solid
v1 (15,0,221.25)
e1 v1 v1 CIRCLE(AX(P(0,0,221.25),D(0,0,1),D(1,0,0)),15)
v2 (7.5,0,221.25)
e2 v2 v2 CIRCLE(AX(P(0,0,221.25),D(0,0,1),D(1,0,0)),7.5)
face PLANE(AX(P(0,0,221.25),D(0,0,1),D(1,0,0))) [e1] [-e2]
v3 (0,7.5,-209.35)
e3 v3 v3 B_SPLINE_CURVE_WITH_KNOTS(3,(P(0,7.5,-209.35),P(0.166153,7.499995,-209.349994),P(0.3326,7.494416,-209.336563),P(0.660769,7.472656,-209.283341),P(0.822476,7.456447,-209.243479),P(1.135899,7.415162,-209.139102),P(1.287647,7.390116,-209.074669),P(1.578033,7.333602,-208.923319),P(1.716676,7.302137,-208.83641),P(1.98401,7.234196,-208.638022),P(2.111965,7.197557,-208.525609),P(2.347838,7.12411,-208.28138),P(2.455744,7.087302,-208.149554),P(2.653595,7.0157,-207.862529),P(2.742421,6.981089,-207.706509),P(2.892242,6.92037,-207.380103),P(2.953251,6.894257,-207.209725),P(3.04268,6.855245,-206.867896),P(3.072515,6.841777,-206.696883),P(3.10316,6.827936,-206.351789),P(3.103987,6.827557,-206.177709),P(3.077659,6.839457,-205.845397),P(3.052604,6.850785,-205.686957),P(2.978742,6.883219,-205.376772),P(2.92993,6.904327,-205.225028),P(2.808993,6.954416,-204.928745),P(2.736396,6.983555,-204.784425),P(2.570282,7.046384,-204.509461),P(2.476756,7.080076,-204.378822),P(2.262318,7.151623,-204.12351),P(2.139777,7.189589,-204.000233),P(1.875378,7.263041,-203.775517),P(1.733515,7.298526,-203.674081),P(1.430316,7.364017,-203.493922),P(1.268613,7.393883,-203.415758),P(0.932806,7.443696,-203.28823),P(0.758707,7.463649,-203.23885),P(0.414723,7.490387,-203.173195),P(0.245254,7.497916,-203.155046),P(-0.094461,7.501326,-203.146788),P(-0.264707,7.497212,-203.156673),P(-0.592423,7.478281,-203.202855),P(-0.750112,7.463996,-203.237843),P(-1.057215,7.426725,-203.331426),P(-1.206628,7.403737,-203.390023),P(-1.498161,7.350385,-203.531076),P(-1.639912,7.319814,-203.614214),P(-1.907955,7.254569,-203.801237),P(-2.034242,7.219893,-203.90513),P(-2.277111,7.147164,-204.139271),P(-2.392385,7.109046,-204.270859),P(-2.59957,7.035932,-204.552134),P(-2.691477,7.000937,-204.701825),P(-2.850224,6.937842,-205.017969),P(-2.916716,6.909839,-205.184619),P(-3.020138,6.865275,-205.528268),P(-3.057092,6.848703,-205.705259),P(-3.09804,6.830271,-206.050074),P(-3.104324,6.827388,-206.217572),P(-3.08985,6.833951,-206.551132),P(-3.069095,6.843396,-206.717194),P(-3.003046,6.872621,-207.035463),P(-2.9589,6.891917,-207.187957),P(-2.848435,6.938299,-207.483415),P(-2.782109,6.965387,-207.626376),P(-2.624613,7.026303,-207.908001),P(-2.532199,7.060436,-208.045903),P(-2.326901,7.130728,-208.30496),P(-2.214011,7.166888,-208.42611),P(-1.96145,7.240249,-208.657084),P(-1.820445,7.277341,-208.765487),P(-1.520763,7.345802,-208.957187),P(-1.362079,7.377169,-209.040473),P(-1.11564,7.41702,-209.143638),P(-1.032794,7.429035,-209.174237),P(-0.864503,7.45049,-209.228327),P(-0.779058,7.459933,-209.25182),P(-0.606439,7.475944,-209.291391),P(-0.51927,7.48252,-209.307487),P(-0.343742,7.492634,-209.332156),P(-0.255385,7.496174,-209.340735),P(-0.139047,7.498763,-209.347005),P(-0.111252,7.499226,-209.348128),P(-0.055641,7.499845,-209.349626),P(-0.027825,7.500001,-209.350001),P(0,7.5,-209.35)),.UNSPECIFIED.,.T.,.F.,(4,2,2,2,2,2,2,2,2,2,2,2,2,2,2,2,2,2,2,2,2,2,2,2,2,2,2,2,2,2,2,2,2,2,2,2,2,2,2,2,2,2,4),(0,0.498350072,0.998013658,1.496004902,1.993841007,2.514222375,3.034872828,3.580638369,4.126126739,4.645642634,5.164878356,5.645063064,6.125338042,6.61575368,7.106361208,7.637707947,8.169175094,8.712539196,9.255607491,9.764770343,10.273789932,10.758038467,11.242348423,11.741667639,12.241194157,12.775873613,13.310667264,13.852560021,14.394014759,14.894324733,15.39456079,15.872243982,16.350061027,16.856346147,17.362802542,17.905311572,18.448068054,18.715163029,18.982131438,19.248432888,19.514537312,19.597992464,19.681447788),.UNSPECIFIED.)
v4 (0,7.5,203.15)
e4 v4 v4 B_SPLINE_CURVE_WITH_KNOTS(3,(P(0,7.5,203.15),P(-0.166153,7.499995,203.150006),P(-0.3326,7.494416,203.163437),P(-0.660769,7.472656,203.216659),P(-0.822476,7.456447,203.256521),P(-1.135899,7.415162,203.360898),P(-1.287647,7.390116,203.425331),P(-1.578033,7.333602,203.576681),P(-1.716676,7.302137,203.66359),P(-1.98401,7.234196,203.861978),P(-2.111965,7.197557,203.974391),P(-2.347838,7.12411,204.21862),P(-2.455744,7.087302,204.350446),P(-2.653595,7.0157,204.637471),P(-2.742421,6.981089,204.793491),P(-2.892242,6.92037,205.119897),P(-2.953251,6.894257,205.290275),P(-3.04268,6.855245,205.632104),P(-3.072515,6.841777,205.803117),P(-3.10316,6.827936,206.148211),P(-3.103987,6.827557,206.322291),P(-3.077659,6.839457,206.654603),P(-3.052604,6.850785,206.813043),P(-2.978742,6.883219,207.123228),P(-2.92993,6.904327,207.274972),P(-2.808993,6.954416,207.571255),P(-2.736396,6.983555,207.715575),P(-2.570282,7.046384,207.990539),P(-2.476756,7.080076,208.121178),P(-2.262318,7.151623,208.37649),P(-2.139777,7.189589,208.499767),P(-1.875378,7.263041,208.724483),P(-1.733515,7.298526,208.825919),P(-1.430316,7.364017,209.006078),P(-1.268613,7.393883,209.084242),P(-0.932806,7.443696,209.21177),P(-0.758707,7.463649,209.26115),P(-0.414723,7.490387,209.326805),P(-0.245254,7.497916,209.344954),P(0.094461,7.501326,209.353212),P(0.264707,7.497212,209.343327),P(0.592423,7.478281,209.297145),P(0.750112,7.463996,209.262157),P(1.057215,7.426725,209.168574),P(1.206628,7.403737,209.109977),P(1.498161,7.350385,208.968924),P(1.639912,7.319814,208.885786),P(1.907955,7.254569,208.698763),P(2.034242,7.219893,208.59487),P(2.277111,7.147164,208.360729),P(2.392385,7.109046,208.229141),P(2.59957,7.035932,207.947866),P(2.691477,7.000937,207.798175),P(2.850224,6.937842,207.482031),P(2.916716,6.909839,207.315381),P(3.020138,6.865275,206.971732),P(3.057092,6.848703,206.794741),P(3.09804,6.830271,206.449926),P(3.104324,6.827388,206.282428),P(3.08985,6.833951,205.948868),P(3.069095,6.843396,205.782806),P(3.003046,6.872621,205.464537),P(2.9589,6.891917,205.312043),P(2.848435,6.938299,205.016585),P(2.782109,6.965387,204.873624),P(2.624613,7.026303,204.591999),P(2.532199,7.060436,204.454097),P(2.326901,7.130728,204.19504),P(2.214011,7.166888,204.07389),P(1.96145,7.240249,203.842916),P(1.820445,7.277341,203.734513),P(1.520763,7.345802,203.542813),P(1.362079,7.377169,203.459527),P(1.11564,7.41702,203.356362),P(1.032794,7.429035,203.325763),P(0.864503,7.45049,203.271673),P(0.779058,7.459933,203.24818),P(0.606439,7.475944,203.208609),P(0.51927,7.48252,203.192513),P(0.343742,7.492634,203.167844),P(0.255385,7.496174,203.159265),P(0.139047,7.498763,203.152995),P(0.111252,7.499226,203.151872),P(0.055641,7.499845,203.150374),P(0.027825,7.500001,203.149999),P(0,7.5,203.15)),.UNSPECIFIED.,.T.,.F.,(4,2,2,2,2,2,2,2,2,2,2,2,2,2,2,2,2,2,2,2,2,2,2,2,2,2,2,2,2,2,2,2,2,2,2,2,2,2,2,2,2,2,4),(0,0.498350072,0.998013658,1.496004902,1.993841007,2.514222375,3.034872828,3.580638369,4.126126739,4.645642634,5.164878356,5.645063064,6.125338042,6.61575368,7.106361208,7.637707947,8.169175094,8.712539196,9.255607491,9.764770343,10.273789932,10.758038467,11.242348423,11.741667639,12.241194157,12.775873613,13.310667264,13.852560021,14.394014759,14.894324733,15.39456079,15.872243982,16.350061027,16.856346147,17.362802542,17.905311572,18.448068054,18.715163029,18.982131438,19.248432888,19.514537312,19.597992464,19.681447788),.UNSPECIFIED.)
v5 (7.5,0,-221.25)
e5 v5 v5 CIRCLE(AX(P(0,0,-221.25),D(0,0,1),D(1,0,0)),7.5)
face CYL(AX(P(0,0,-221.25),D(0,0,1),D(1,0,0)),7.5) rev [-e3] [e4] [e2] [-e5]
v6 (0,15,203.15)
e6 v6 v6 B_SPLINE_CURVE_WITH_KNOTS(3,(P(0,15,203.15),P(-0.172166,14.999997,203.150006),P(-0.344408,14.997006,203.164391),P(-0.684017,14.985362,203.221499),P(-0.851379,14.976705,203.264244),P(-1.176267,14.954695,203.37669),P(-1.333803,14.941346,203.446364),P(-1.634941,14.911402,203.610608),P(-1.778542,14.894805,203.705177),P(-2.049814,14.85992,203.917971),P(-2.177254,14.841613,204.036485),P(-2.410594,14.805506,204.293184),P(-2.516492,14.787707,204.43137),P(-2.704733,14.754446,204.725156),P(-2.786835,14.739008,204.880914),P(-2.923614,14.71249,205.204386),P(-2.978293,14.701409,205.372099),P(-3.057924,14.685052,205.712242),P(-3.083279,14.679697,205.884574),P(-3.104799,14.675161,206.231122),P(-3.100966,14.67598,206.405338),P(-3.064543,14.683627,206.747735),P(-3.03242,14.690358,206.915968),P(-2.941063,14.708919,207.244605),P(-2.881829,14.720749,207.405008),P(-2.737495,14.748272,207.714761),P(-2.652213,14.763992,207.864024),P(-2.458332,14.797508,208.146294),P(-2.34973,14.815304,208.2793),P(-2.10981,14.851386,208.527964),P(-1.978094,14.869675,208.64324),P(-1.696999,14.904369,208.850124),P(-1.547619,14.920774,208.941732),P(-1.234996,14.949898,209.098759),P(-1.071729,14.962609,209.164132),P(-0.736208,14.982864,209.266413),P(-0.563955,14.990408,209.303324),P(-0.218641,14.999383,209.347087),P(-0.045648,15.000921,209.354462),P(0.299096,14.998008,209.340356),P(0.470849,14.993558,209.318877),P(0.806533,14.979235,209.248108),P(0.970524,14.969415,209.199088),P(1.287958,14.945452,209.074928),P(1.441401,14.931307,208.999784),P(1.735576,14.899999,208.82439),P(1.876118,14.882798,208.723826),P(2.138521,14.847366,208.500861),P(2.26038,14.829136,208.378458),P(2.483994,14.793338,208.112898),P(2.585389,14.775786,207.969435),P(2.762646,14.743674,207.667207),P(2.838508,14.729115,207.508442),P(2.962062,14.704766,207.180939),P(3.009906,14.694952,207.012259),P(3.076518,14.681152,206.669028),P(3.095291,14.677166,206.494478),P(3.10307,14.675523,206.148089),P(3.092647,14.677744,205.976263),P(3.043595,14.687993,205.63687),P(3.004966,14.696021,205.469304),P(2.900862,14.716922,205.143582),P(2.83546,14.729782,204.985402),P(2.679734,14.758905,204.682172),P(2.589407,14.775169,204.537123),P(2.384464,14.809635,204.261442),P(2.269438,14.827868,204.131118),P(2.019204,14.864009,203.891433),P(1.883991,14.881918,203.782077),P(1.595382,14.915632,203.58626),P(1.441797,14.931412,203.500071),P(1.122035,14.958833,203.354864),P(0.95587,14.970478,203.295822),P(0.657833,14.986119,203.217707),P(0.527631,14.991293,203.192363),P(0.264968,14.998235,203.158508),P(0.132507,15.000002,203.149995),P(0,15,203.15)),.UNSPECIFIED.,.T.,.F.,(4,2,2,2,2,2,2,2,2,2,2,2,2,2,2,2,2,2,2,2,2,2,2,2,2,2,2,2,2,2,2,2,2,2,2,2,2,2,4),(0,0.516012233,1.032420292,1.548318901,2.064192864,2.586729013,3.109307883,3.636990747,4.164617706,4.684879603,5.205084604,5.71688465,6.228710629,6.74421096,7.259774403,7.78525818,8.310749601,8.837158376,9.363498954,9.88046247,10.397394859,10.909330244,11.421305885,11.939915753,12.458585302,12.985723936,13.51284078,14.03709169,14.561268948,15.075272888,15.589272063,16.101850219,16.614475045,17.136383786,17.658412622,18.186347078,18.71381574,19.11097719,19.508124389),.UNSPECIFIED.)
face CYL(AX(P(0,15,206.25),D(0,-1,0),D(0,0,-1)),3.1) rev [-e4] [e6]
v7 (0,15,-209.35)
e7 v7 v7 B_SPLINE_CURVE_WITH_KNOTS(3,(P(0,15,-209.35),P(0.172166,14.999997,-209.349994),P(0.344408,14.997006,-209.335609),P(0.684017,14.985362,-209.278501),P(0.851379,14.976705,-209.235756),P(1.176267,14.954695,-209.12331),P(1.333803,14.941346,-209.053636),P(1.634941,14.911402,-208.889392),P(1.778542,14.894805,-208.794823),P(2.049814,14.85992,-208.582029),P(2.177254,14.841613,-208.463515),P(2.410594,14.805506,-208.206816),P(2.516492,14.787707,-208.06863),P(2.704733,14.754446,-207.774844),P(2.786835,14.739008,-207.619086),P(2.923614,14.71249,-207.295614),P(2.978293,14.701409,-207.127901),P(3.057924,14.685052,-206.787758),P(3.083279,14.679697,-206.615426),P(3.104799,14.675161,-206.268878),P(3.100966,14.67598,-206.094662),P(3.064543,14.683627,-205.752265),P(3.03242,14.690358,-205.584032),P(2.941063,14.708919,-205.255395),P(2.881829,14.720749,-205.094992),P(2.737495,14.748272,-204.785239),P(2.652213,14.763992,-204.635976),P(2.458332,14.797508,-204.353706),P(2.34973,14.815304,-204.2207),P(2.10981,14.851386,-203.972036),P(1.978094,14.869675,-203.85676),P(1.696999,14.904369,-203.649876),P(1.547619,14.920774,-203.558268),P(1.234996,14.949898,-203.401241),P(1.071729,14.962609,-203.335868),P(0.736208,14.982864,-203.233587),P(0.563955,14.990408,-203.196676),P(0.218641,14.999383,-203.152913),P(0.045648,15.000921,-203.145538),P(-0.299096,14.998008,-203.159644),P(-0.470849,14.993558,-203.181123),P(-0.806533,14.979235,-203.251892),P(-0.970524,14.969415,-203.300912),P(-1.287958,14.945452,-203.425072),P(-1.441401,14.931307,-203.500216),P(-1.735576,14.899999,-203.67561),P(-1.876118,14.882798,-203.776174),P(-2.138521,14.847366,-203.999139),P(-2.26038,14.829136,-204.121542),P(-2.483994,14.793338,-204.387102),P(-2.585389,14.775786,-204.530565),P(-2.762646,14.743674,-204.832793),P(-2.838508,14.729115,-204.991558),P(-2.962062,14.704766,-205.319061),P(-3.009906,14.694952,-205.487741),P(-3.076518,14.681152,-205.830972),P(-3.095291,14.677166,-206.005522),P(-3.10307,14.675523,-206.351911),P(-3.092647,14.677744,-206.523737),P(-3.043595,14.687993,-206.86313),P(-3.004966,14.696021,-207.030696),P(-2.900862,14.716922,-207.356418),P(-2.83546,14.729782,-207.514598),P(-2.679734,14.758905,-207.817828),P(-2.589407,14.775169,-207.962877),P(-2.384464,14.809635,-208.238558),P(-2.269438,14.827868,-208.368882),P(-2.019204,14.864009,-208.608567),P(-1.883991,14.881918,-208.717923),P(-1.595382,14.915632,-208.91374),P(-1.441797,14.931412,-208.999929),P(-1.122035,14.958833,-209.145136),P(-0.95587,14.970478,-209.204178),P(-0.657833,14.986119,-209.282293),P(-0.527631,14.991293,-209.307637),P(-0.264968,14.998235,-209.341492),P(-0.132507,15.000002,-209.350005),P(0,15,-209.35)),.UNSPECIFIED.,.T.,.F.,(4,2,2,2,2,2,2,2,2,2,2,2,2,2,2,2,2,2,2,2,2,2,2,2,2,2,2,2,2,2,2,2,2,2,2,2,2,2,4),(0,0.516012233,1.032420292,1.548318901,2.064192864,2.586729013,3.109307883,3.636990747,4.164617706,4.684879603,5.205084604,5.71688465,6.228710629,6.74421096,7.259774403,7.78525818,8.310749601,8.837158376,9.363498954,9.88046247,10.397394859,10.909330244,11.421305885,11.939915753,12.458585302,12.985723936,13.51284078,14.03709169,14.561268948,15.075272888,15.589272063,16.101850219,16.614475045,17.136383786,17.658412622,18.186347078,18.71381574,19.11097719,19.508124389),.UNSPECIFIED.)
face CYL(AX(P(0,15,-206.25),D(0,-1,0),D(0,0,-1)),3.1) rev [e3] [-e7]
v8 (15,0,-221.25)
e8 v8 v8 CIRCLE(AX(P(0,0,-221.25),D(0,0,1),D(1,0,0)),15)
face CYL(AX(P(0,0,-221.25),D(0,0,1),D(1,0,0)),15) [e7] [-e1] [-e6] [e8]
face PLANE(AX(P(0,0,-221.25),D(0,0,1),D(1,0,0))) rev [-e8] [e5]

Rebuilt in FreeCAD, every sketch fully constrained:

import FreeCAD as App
import Part
import Sketcher
from FreeCAD import Vector
Q = App.Units.Quantity

doc = App.newDocument("Part")
body = doc.addObject("PartDesign::Body", "Body")

sketch1 = doc.addObject("Sketcher::SketchObject", "Sketch")
body.addObject(sketch1)
sketch1.AttachmentSupport = (doc.XY_Plane, [""])
sketch1.MapMode = "FlatFace"
sketch1.addGeometry(Part.Circle(Vector(0, 0, 0), Vector(0, 0, 1), 15), False)
sketch1.addGeometry(Part.Circle(Vector(0, 0, 0), Vector(0, 0, 1), 7.5), False)
sketch1.addConstraint(Sketcher.Constraint("Coincident", 0, 3, -1, 1))
sketch1.addConstraint(Sketcher.Constraint("Coincident", 1, 3, -1, 1))
sketch1.addConstraint(Sketcher.Constraint("Diameter", 0, Q("30 mm")))
sketch1.addConstraint(Sketcher.Constraint("Diameter", 1, Q("15 mm")))
pad1 = doc.addObject("PartDesign::Pad", "Pad")
body.addObject(pad1)
pad1.Profile = sketch1
pad1.Type = "TwoLengths"
pad1.Length = 221.25
pad1.Length2 = 221.25

sketch2 = doc.addObject("Sketcher::SketchObject", "Sketch001")
body.addObject(sketch2)
sketch2.AttachmentSupport = (doc.XZ_Plane, [""])
sketch2.MapMode = "FlatFace"
sketch2.addGeometry(Part.Circle(Vector(0, -206.25, 0), Vector(0, 0, 1), 3.1), False)
sketch2.addConstraint(Sketcher.Constraint("PointOnObject", 0, 3, -2))
sketch2.addConstraint(Sketcher.Constraint("Diameter", 0, Q("6.2 mm")))
sketch2.addConstraint(Sketcher.Constraint("DistanceY", 0, 3, -1, 1, Q("206.25 mm")))
pocket1 = doc.addObject("PartDesign::Pocket", "Pocket")
body.addObject(pocket1)
pocket1.Profile = sketch2
pocket1.Type = "ThroughAll"
doc.recompute()

mirrored = doc.addObject("PartDesign::Mirrored", "Mirrored")
body.addObject(mirrored)
mirrored.Originals = [pocket1]
mirrored.MirrorPlane = (doc.XY_Plane, [""])
body.Tip = mirrored

doc.recompute()
